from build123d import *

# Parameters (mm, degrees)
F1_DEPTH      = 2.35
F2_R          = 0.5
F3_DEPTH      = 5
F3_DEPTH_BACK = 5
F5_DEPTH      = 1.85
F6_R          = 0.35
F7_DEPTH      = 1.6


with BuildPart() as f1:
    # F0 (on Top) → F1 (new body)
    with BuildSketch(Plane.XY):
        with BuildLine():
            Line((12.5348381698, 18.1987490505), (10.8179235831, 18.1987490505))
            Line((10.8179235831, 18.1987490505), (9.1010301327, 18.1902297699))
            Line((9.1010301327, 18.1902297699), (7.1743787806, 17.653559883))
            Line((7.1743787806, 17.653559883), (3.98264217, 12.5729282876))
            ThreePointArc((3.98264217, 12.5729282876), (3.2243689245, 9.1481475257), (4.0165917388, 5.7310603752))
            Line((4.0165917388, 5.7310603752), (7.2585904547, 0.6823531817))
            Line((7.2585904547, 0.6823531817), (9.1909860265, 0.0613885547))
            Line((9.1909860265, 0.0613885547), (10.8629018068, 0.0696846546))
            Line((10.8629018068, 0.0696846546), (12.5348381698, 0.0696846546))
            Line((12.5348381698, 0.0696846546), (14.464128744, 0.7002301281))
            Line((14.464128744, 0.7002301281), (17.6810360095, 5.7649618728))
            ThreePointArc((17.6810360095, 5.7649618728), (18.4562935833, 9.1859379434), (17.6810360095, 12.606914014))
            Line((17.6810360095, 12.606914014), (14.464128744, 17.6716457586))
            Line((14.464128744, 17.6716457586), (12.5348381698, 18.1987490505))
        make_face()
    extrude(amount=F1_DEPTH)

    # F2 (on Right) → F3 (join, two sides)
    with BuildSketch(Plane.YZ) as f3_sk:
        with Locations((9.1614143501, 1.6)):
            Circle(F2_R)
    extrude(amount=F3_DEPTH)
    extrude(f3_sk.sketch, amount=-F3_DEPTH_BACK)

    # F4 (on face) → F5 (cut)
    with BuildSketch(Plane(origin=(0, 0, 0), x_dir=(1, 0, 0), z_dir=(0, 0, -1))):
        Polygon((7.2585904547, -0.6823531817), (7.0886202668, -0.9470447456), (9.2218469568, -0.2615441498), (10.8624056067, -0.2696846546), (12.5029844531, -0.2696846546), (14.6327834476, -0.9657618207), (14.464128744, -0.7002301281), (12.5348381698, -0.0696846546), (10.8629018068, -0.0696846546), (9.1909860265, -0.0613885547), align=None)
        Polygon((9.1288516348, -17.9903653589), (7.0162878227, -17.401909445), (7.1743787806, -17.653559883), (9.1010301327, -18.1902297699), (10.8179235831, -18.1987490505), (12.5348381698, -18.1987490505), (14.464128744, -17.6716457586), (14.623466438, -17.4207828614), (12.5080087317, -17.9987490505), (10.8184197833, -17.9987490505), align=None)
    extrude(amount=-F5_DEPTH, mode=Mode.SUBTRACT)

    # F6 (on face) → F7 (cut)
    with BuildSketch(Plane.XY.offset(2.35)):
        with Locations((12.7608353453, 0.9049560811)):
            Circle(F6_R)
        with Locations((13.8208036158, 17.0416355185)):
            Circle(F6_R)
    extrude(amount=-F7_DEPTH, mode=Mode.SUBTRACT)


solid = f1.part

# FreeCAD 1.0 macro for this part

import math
import FreeCAD as App
import Part
import Sketcher

doc = App.newDocument("Part")
body = doc.addObject("PartDesign::Body", "Body")

# Sketch on XY plane
sketch1 = body.newObject("Sketcher::SketchObject", "Sketch")
sketch1.AttachmentSupport = (doc.getObject("XY_Plane"), [""])
sketch1.MapMode = "FlatFace"
sketch1.addGeometry([
    Part.LineSegment(App.Vector(12.5, 18.2, 0), App.Vector(10.8, 18.2, 0)),  # 0
    Part.LineSegment(App.Vector(10.8, 18.2, 0), App.Vector(9.1, 18.2, 0)),  # 1
    Part.LineSegment(App.Vector(9.1, 18.2, 0), App.Vector(7.2, 17.7, 0)),  # 2
    Part.LineSegment(App.Vector(7.2, 17.7, 0), App.Vector(4, 12.6, 0)),  # 3
    Part.ArcOfCircle(Part.Circle(App.Vector(11.2, 9.2, 0), App.Vector(0, 0, 1), 7.9), math.radians(155), math.radians(206)),  # 4
    Part.LineSegment(App.Vector(4, 5.7, 0), App.Vector(7.3, 0.7, 0)),  # 5
    Part.LineSegment(App.Vector(7.3, 0.7, 0), App.Vector(9.2, 0.1, 0)),  # 6
    Part.LineSegment(App.Vector(9.2, 0.1, 0), App.Vector(10.9, 0.1, 0)),  # 7
    Part.LineSegment(App.Vector(10.9, 0.1, 0), App.Vector(12.5, 0.1, 0)),  # 8
    Part.LineSegment(App.Vector(12.5, 0.1, 0), App.Vector(14.5, 0.7, 0)),  # 9
    Part.LineSegment(App.Vector(14.5, 0.7, 0), App.Vector(17.7, 5.8, 0)),  # 10
    Part.ArcOfCircle(Part.Circle(App.Vector(10.5, 9.2, 0), App.Vector(0, 0, 1), 7.9), math.radians(-26), math.radians(26)),  # 11
    Part.LineSegment(App.Vector(17.7, 12.6, 0), App.Vector(14.5, 17.7, 0)),  # 12
    Part.LineSegment(App.Vector(14.5, 17.7, 0), App.Vector(12.5, 18.2, 0)),  # 13
], False)
sketch1.addConstraint([
    Sketcher.Constraint("Coincident", 0, 2, 1, 1),
    Sketcher.Constraint("Coincident", 1, 2, 2, 1),
    Sketcher.Constraint("Coincident", 2, 2, 3, 1),
    Sketcher.Constraint("Coincident", 3, 2, 4, 1),
    Sketcher.Constraint("Coincident", 4, 2, 5, 1),
    Sketcher.Constraint("Coincident", 5, 2, 6, 1),
    Sketcher.Constraint("Coincident", 6, 2, 7, 1),
    Sketcher.Constraint("Coincident", 7, 2, 8, 1),
    Sketcher.Constraint("Coincident", 8, 2, 9, 1),
    Sketcher.Constraint("Coincident", 9, 2, 10, 1),
    Sketcher.Constraint("Coincident", 10, 2, 11, 1),
    Sketcher.Constraint("Coincident", 11, 2, 12, 1),
    Sketcher.Constraint("Coincident", 12, 2, 13, 1),
    Sketcher.Constraint("Coincident", 13, 2, 0, 1),
    Sketcher.Constraint("Horizontal", 0),
    Sketcher.Constraint("Horizontal", 8),
    Sketcher.Constraint("Equal", 4, 11),
    Sketcher.Constraint("Parallel", 1, 7),
    Sketcher.Constraint("Vertical", 10, 2, 11, 2),
    Sketcher.Constraint("Vertical", 9, 2, 12, 2),
    Sketcher.Constraint("Vertical", 8, 2, 13, 2),
    Sketcher.Constraint("Equal", 3, 5),
    Sketcher.Constraint("Equal", 6, 9),
    Sketcher.Constraint("Equal", 5, 10),
    Sketcher.Constraint("Equal", 10, 12),
    Sketcher.Constraint("Equal", 2, 13),
    Sketcher.Constraint("Distance", 2, 2.0),
    Sketcher.Constraint("Distance", 3, 6.0),
    Sketcher.Constraint("Radius", 4, 7.935493),
    Sketcher.Constraint("DistanceX", 4, 2, 5, 2, 3.241999),
    Sketcher.Constraint("DistanceX", -1, 1, 11, 3, 10.520801),
    Sketcher.Constraint("DistanceX", -1, 1, 7, 2, 10.862902),
    Sketcher.Constraint("DistanceY", 3, 2, 1, 2, 5.617301),
    Sketcher.Constraint("DistanceY", 4, 2, 2, 2, 11.9225),
    Sketcher.Constraint("DistanceX", 1, 2, 12, 2, 5.363099),
    Sketcher.Constraint("DistanceX", 0, 2, 0, 1, 1.716915),
    Sketcher.Constraint("DistanceX", 8, 1, 8, 2, 1.671936),
    Sketcher.Constraint("DistanceY", -1, 1, 0, 2, 18.198749),
    Sketcher.Constraint("DistanceX", -1, 1, 1, 2, 9.10103),
    Sketcher.Constraint("DistanceY", -1, 1, 1, 2, 18.19023),
    Sketcher.Constraint("DistanceX", -1, 1, 2, 2, 7.174379),
    Sketcher.Constraint("DistanceX", -1, 1, 4, 2, 4.016592),
    Sketcher.Constraint("DistanceY", -1, 1, 6, 2, 0.061389),
    Sketcher.Constraint("DistanceY", -1, 1, 9, 2, 0.70023),
])
pad1 = body.newObject("PartDesign::Pad", "Pad")
pad1.Profile = sketch1
pad1.Length = 2.35

# Sketch on YZ plane
sketch2 = body.newObject("Sketcher::SketchObject", "Sketch001")
sketch2.AttachmentSupport = (doc.getObject("YZ_Plane"), [""])
sketch2.MapMode = "FlatFace"
sketch2.addGeometry(Part.Circle(App.Vector(9.2, 1.6, 0), App.Vector(0, 0, 1), 0.5), False)
sketch2.addConstraint([
    Sketcher.Constraint("Diameter", 0, 1.0),
    Sketcher.Constraint("DistanceY", -1, 1, 0, 3, 1.6),
    Sketcher.Constraint("DistanceX", -1, 1, 0, 3, 9.161414),
])
pad2 = body.newObject("PartDesign::Pad", "Pad001")
pad2.Profile = sketch2
pad2.Type = "TwoLengths"
pad2.Length = 5
pad2.Length2 = 5

# Sketch on XY plane
sketch3 = body.newObject("Sketcher::SketchObject", "Sketch002")
sketch3.AttachmentSupport = (doc.getObject("XY_Plane"), [""])
sketch3.MapMode = "FlatFace"
sketch3.addGeometry([
    Part.LineSegment(App.Vector(7.26, 0.68, 0), App.Vector(7.09, 0.95, 0)),  # 0
    Part.LineSegment(App.Vector(7.09, 0.95, 0), App.Vector(9.22, 0.26, 0)),  # 1
    Part.LineSegment(App.Vector(9.22, 0.26, 0), App.Vector(10.86, 0.27, 0)),  # 2
    Part.LineSegment(App.Vector(10.86, 0.27, 0), App.Vector(12.5, 0.27, 0)),  # 3
    Part.LineSegment(App.Vector(12.5, 0.27, 0), App.Vector(14.63, 0.97, 0)),  # 4
    Part.LineSegment(App.Vector(14.63, 0.97, 0), App.Vector(14.46, 0.7, 0)),  # 5
    Part.LineSegment(App.Vector(14.46, 0.7, 0), App.Vector(12.53, 0.07, 0)),  # 6
    Part.LineSegment(App.Vector(12.53, 0.07, 0), App.Vector(10.86, 0.07, 0)),  # 7
    Part.LineSegment(App.Vector(10.86, 0.07, 0), App.Vector(9.19, 0.06, 0)),  # 8
    Part.LineSegment(App.Vector(9.19, 0.06, 0), App.Vector(7.26, 0.68, 0)),  # 9
    Part.LineSegment(App.Vector(9.13, 17.99, 0), App.Vector(7.02, 17.4, 0)),  # 10
    Part.LineSegment(App.Vector(7.02, 17.4, 0), App.Vector(7.17, 17.65, 0)),  # 11
    Part.LineSegment(App.Vector(7.17, 17.65, 0), App.Vector(9.1, 18.19, 0)),  # 12
    Part.LineSegment(App.Vector(9.1, 18.19, 0), App.Vector(10.82, 18.2, 0)),  # 13
    Part.LineSegment(App.Vector(10.82, 18.2, 0), App.Vector(12.53, 18.2, 0)),  # 14
    Part.LineSegment(App.Vector(12.53, 18.2, 0), App.Vector(14.46, 17.67, 0)),  # 15
    Part.LineSegment(App.Vector(14.46, 17.67, 0), App.Vector(14.62, 17.42, 0)),  # 16
    Part.LineSegment(App.Vector(14.62, 17.42, 0), App.Vector(12.51, 18, 0)),  # 17
    Part.LineSegment(App.Vector(12.51, 18, 0), App.Vector(10.82, 18, 0)),  # 18
    Part.LineSegment(App.Vector(10.82, 18, 0), App.Vector(9.13, 17.99, 0)),  # 19
], False)
sketch3.addConstraint([
    Sketcher.Constraint("Coincident", 0, 2, 1, 1),
    Sketcher.Constraint("Coincident", 1, 2, 2, 1),
    Sketcher.Constraint("Coincident", 2, 2, 3, 1),
    Sketcher.Constraint("Coincident", 3, 2, 4, 1),
    Sketcher.Constraint("Coincident", 4, 2, 5, 1),
    Sketcher.Constraint("Coincident", 5, 2, 6, 1),
    Sketcher.Constraint("Coincident", 6, 2, 7, 1),
    Sketcher.Constraint("Coincident", 7, 2, 8, 1),
    Sketcher.Constraint("Coincident", 8, 2, 9, 1),
    Sketcher.Constraint("Coincident", 9, 2, 0, 1),
    Sketcher.Constraint("Coincident", 10, 2, 11, 1),
    Sketcher.Constraint("Coincident", 11, 2, 12, 1),
    Sketcher.Constraint("Coincident", 12, 2, 13, 1),
    Sketcher.Constraint("Coincident", 13, 2, 14, 1),
    Sketcher.Constraint("Coincident", 14, 2, 15, 1),
    Sketcher.Constraint("Coincident", 15, 2, 16, 1),
    Sketcher.Constraint("Coincident", 16, 2, 17, 1),
    Sketcher.Constraint("Coincident", 17, 2, 18, 1),
    Sketcher.Constraint("Coincident", 18, 2, 19, 1),
    Sketcher.Constraint("Coincident", 19, 2, 10, 1),
    Sketcher.Constraint("Horizontal", 3),
    Sketcher.Constraint("Horizontal", 7),
    Sketcher.Constraint("Horizontal", 14),
    Sketcher.Constraint("Horizontal", 18),
    Sketcher.Constraint("Parallel", 4, 6),
    Sketcher.Constraint("Parallel", 2, 8),
    Sketcher.Constraint("Parallel", 1, 9),
    Sketcher.Constraint("Parallel", 10, 12),
    Sketcher.Constraint("Parallel", 8, 13),
    Sketcher.Constraint("Parallel", 15, 17),
    Sketcher.Constraint("Parallel", 13, 19),
    Sketcher.Constraint("Vertical", 6, 2, 14, 2),
    Sketcher.Constraint("Vertical", 5, 2, 15, 2),
    Sketcher.Constraint("Equal", 1, 4),
    Sketcher.Constraint("Equal", 0, 5),
    Sketcher.Constraint("Equal", 6, 9),
    Sketcher.Constraint("Equal", 12, 15),
    Sketcher.Constraint("Equal", 11, 16),
    Sketcher.Constraint("Equal", 10, 17),
    Sketcher.Constraint("Distance", 12, 2.0),
    Sketcher.Constraint("DistanceY", 6, 2, 3, 2, 0.2),
    Sketcher.Constraint("DistanceY", 17, 2, 14, 2, 0.2),
    Sketcher.Constraint("DistanceX", 8, 2, 3, 2, 3.311998),
    Sketcher.Constraint("DistanceX", 3, 1, 3, 2, 1.640579),
    Sketcher.Constraint("DistanceX", 18, 2, 18, 1, 1.689589),
    Sketcher.Constraint("DistanceX", -1, 1, 7, 2, 10.862902),
    Sketcher.Constraint("DistanceY", 1, 2, 0, 2, 0.685501),
    Sketcher.Constraint("DistanceX", 3, 2, 4, 2, 2.129799),
    Sketcher.Constraint("DistanceX", 10, 2, 8, 2, 2.174698),
    Sketcher.Constraint("DistanceX", 12, 2, 15, 2, 5.363099),
    Sketcher.Constraint("Distance", 2, 1.640579),
    Sketcher.Constraint("Distance", 10, 2.19299),
    Sketcher.Constraint("Distance", 19, 1.689589),
    Sketcher.Constraint("DistanceX", 7, 2, 7, 1, 1.671936),
    Sketcher.Constraint("DistanceX", 14, 1, 14, 2, 1.716915),
    Sketcher.Constraint("DistanceX", -1, 1, 0, 2, 7.08862),
    Sketcher.Constraint("DistanceY", -1, 1, 4, 2, 0.965762),
    Sketcher.Constraint("DistanceX", -1, 1, 5, 2, 14.464129),
    Sketcher.Constraint("DistanceY", -1, 1, 8, 2, 0.061389),
    Sketcher.Constraint("DistanceY", -1, 1, 10, 2, 17.401909),
])
pocket1 = body.newObject("PartDesign::Pocket", "Pocket")
pocket1.Profile = sketch3
pocket1.Length = 1.85
pocket1.Reversed = True

# Sketch on XY plane
sketch4 = body.newObject("Sketcher::SketchObject", "Sketch003")
sketch4.AttachmentSupport = (doc.getObject("XY_Plane"), [""])
sketch4.MapMode = "FlatFace"
sketch4.AttachmentOffset = App.Placement(App.Vector(0, 0, 2.35), App.Rotation())
sketch4.addGeometry([
    Part.Circle(App.Vector(12.76, 0.9, 0), App.Vector(0, 0, 1), 0.35),
    Part.Circle(App.Vector(13.82, 17.04, 0), App.Vector(0, 0, 1), 0.35),
], False)
sketch4.addConstraint([
    Sketcher.Constraint("Equal", 0, 1),
    Sketcher.Constraint("Diameter", 0, 0.7),
    Sketcher.Constraint("DistanceX", 0, 3, 1, 3, 1.059968),
    Sketcher.Constraint("DistanceY", 0, 3, 1, 3, 16.136679),
    Sketcher.Constraint("DistanceX", -1, 1, 0, 3, 12.760835),
    Sketcher.Constraint("DistanceY", -1, 1, 0, 3, 0.904956),
])
pocket2 = body.newObject("PartDesign::Pocket", "Pocket001")
pocket2.Profile = sketch4
pocket2.Length = 1.6

doc.recompute()
